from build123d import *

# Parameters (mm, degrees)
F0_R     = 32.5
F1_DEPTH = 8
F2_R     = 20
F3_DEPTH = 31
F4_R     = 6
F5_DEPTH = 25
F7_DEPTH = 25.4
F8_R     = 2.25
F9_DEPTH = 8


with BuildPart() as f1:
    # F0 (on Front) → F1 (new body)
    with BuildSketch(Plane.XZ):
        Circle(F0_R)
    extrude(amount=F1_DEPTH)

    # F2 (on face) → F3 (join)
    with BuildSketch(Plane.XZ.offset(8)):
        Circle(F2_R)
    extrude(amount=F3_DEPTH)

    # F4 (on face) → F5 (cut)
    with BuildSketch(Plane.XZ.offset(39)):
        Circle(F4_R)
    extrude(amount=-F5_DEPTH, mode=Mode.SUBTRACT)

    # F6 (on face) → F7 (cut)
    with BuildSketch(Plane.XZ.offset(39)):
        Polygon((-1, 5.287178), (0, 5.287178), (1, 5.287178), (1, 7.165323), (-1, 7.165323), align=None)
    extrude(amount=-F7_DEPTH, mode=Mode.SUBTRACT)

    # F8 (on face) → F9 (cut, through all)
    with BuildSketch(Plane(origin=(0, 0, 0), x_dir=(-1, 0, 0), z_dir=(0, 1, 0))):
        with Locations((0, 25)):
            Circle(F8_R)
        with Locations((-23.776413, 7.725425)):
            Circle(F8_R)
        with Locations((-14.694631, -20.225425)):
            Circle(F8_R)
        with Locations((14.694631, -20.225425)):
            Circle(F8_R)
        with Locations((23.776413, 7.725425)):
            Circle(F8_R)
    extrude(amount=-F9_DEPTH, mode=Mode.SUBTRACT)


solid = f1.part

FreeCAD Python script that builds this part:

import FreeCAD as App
import Part
import Sketcher

V = App.Vector


def add_polygon(sketch, points):
    """Adds a closed chain of lines whose ends are joined by coincident constraints."""
    first, n = sketch.GeometryCount, len(points)
    for a, b in zip(points, points[1:] + points[:1]):
        sketch.addGeometry(Part.LineSegment(App.Vector(*a, 0), App.Vector(*b, 0)), False)
    for i in range(n):
        sketch.addConstraint(Sketcher.Constraint("Coincident", first + i, 2, first + (i + 1) % n, 1))

doc = App.newDocument("Part")
body = doc.addObject("PartDesign::Body", "Body")

sketch1 = body.newObject("Sketcher::SketchObject", "Sketch")
sketch1.AttachmentSupport = (doc.getObject("XZ_Plane"), [""])
sketch1.MapMode = "FlatFace"
sketch1.addGeometry(Part.Circle(V(0, 0, 0), V(0, 0, 1), 32), False)
sketch1.addConstraint([
    Sketcher.Constraint("Coincident", 0, 3, -1, 1),
    Sketcher.Constraint("Diameter", 0, 65.0),
])
pad1 = body.newObject("PartDesign::Pad", "Pad")
pad1.Profile = sketch1
pad1.Length = 8

sketch2 = body.newObject("Sketcher::SketchObject", "Sketch001")
sketch2.AttachmentSupport = (doc.getObject("XZ_Plane"), [""])
sketch2.MapMode = "FlatFace"
sketch2.AttachmentOffset = App.Placement(V(0, 0, 8), App.Rotation())
sketch2.addGeometry(Part.Circle(V(0, 0, 0), V(0, 0, 1), 20), False)
sketch2.addConstraint([
    Sketcher.Constraint("Coincident", 0, 3, -1, 1),
    Sketcher.Constraint("Diameter", 0, 40.0),
])
pad2 = body.newObject("PartDesign::Pad", "Pad001")
pad2.Profile = sketch2
pad2.Length = 31

sketch3 = body.newObject("Sketcher::SketchObject", "Sketch002")
sketch3.AttachmentSupport = (doc.getObject("XZ_Plane"), [""])
sketch3.MapMode = "FlatFace"
sketch3.AttachmentOffset = App.Placement(V(0, 0, 39), App.Rotation())
sketch3.addGeometry(Part.Circle(V(0, 0, 0), V(0, 0, 1), 6), False)
sketch3.addConstraint([
    Sketcher.Constraint("Coincident", 0, 3, -1, 1),
    Sketcher.Constraint("Diameter", 0, 12.0),
])
pocket1 = body.newObject("PartDesign::Pocket", "Pocket")
pocket1.Profile = sketch3
pocket1.Length = 25

sketch4 = body.newObject("Sketcher::SketchObject", "Sketch003")
sketch4.AttachmentSupport = (doc.getObject("XZ_Plane"), [""])
sketch4.MapMode = "FlatFace"
sketch4.AttachmentOffset = App.Placement(V(0, 0, 39), App.Rotation())
add_polygon(sketch4, [(-1, 5.3), (1, 5.3), (1, 7.2), (-1, 7.2)])
sketch4.addConstraint([
    Sketcher.Constraint("Horizontal", 0),
    Sketcher.Constraint("Vertical", 1),
    Sketcher.Constraint("Horizontal", 2),
    Sketcher.Constraint("Vertical", 3),
    Sketcher.Constraint("DistanceX", 0, 1, 0, 2, 2.0),
    Sketcher.Constraint("DistanceX", -1, 1, 0, 2, 1.0),
    Sketcher.Constraint("DistanceY", 1, 1, 1, 2, 1.878145),
    Sketcher.Constraint("DistanceY", -1, 1, 0, 2, 5.287178),
])
pocket2 = body.newObject("PartDesign::Pocket", "Pocket001")
pocket2.Profile = sketch4
pocket2.Length = 25.4

sketch5 = body.newObject("Sketcher::SketchObject", "Sketch004")
sketch5.AttachmentSupport = (doc.getObject("XZ_Plane"), [""])
sketch5.MapMode = "FlatFace"
sketch5.addGeometry([
    Part.Circle(V(0, 25, 0), V(0, 0, 1), 2.2),
    Part.Circle(V(23.8, 7.7, 0), V(0, 0, 1), 2.2),
    Part.Circle(V(14.7, -20.2, 0), V(0, 0, 1), 2.2),
    Part.Circle(V(-14.7, -20.2, 0), V(0, 0, 1), 2.2),
    Part.Circle(V(-23.8, 7.7, 0), V(0, 0, 1), 2.2),
], False)
sketch5.addConstraint([
    Sketcher.Constraint("Equal", 0, 1),
    Sketcher.Constraint("Equal", 1, 2),
    Sketcher.Constraint("Equal", 2, 3),
    Sketcher.Constraint("Equal", 3, 4),
    Sketcher.Constraint("Symmetric", 2, 3, 3, 3, -2),
    Sketcher.Constraint("Symmetric", 1, 3, 4, 3, -2),
    Sketcher.Constraint("PointOnObject", 0, 3, -2),
    Sketcher.Constraint("Diameter", 0, 4.5),
    Sketcher.Constraint("DistanceY", -1, 1, 0, 3, 25.0),
    Sketcher.Constraint("DistanceX", -1, 1, 2, 3, 14.694631),
    Sketcher.Constraint("DistanceY", 2, 3, 1, 3, 27.95085),
    Sketcher.Constraint("DistanceX", -1, 1, 1, 3, 23.776413),
    Sketcher.Constraint("DistanceY", -1, 1, 1, 3, 7.725425),
])
pocket3 = body.newObject("PartDesign::Pocket", "Pocket002")
pocket3.Profile = sketch5
pocket3.Type = "ThroughAll"
pocket3.Reversed = True

doc.recompute()
